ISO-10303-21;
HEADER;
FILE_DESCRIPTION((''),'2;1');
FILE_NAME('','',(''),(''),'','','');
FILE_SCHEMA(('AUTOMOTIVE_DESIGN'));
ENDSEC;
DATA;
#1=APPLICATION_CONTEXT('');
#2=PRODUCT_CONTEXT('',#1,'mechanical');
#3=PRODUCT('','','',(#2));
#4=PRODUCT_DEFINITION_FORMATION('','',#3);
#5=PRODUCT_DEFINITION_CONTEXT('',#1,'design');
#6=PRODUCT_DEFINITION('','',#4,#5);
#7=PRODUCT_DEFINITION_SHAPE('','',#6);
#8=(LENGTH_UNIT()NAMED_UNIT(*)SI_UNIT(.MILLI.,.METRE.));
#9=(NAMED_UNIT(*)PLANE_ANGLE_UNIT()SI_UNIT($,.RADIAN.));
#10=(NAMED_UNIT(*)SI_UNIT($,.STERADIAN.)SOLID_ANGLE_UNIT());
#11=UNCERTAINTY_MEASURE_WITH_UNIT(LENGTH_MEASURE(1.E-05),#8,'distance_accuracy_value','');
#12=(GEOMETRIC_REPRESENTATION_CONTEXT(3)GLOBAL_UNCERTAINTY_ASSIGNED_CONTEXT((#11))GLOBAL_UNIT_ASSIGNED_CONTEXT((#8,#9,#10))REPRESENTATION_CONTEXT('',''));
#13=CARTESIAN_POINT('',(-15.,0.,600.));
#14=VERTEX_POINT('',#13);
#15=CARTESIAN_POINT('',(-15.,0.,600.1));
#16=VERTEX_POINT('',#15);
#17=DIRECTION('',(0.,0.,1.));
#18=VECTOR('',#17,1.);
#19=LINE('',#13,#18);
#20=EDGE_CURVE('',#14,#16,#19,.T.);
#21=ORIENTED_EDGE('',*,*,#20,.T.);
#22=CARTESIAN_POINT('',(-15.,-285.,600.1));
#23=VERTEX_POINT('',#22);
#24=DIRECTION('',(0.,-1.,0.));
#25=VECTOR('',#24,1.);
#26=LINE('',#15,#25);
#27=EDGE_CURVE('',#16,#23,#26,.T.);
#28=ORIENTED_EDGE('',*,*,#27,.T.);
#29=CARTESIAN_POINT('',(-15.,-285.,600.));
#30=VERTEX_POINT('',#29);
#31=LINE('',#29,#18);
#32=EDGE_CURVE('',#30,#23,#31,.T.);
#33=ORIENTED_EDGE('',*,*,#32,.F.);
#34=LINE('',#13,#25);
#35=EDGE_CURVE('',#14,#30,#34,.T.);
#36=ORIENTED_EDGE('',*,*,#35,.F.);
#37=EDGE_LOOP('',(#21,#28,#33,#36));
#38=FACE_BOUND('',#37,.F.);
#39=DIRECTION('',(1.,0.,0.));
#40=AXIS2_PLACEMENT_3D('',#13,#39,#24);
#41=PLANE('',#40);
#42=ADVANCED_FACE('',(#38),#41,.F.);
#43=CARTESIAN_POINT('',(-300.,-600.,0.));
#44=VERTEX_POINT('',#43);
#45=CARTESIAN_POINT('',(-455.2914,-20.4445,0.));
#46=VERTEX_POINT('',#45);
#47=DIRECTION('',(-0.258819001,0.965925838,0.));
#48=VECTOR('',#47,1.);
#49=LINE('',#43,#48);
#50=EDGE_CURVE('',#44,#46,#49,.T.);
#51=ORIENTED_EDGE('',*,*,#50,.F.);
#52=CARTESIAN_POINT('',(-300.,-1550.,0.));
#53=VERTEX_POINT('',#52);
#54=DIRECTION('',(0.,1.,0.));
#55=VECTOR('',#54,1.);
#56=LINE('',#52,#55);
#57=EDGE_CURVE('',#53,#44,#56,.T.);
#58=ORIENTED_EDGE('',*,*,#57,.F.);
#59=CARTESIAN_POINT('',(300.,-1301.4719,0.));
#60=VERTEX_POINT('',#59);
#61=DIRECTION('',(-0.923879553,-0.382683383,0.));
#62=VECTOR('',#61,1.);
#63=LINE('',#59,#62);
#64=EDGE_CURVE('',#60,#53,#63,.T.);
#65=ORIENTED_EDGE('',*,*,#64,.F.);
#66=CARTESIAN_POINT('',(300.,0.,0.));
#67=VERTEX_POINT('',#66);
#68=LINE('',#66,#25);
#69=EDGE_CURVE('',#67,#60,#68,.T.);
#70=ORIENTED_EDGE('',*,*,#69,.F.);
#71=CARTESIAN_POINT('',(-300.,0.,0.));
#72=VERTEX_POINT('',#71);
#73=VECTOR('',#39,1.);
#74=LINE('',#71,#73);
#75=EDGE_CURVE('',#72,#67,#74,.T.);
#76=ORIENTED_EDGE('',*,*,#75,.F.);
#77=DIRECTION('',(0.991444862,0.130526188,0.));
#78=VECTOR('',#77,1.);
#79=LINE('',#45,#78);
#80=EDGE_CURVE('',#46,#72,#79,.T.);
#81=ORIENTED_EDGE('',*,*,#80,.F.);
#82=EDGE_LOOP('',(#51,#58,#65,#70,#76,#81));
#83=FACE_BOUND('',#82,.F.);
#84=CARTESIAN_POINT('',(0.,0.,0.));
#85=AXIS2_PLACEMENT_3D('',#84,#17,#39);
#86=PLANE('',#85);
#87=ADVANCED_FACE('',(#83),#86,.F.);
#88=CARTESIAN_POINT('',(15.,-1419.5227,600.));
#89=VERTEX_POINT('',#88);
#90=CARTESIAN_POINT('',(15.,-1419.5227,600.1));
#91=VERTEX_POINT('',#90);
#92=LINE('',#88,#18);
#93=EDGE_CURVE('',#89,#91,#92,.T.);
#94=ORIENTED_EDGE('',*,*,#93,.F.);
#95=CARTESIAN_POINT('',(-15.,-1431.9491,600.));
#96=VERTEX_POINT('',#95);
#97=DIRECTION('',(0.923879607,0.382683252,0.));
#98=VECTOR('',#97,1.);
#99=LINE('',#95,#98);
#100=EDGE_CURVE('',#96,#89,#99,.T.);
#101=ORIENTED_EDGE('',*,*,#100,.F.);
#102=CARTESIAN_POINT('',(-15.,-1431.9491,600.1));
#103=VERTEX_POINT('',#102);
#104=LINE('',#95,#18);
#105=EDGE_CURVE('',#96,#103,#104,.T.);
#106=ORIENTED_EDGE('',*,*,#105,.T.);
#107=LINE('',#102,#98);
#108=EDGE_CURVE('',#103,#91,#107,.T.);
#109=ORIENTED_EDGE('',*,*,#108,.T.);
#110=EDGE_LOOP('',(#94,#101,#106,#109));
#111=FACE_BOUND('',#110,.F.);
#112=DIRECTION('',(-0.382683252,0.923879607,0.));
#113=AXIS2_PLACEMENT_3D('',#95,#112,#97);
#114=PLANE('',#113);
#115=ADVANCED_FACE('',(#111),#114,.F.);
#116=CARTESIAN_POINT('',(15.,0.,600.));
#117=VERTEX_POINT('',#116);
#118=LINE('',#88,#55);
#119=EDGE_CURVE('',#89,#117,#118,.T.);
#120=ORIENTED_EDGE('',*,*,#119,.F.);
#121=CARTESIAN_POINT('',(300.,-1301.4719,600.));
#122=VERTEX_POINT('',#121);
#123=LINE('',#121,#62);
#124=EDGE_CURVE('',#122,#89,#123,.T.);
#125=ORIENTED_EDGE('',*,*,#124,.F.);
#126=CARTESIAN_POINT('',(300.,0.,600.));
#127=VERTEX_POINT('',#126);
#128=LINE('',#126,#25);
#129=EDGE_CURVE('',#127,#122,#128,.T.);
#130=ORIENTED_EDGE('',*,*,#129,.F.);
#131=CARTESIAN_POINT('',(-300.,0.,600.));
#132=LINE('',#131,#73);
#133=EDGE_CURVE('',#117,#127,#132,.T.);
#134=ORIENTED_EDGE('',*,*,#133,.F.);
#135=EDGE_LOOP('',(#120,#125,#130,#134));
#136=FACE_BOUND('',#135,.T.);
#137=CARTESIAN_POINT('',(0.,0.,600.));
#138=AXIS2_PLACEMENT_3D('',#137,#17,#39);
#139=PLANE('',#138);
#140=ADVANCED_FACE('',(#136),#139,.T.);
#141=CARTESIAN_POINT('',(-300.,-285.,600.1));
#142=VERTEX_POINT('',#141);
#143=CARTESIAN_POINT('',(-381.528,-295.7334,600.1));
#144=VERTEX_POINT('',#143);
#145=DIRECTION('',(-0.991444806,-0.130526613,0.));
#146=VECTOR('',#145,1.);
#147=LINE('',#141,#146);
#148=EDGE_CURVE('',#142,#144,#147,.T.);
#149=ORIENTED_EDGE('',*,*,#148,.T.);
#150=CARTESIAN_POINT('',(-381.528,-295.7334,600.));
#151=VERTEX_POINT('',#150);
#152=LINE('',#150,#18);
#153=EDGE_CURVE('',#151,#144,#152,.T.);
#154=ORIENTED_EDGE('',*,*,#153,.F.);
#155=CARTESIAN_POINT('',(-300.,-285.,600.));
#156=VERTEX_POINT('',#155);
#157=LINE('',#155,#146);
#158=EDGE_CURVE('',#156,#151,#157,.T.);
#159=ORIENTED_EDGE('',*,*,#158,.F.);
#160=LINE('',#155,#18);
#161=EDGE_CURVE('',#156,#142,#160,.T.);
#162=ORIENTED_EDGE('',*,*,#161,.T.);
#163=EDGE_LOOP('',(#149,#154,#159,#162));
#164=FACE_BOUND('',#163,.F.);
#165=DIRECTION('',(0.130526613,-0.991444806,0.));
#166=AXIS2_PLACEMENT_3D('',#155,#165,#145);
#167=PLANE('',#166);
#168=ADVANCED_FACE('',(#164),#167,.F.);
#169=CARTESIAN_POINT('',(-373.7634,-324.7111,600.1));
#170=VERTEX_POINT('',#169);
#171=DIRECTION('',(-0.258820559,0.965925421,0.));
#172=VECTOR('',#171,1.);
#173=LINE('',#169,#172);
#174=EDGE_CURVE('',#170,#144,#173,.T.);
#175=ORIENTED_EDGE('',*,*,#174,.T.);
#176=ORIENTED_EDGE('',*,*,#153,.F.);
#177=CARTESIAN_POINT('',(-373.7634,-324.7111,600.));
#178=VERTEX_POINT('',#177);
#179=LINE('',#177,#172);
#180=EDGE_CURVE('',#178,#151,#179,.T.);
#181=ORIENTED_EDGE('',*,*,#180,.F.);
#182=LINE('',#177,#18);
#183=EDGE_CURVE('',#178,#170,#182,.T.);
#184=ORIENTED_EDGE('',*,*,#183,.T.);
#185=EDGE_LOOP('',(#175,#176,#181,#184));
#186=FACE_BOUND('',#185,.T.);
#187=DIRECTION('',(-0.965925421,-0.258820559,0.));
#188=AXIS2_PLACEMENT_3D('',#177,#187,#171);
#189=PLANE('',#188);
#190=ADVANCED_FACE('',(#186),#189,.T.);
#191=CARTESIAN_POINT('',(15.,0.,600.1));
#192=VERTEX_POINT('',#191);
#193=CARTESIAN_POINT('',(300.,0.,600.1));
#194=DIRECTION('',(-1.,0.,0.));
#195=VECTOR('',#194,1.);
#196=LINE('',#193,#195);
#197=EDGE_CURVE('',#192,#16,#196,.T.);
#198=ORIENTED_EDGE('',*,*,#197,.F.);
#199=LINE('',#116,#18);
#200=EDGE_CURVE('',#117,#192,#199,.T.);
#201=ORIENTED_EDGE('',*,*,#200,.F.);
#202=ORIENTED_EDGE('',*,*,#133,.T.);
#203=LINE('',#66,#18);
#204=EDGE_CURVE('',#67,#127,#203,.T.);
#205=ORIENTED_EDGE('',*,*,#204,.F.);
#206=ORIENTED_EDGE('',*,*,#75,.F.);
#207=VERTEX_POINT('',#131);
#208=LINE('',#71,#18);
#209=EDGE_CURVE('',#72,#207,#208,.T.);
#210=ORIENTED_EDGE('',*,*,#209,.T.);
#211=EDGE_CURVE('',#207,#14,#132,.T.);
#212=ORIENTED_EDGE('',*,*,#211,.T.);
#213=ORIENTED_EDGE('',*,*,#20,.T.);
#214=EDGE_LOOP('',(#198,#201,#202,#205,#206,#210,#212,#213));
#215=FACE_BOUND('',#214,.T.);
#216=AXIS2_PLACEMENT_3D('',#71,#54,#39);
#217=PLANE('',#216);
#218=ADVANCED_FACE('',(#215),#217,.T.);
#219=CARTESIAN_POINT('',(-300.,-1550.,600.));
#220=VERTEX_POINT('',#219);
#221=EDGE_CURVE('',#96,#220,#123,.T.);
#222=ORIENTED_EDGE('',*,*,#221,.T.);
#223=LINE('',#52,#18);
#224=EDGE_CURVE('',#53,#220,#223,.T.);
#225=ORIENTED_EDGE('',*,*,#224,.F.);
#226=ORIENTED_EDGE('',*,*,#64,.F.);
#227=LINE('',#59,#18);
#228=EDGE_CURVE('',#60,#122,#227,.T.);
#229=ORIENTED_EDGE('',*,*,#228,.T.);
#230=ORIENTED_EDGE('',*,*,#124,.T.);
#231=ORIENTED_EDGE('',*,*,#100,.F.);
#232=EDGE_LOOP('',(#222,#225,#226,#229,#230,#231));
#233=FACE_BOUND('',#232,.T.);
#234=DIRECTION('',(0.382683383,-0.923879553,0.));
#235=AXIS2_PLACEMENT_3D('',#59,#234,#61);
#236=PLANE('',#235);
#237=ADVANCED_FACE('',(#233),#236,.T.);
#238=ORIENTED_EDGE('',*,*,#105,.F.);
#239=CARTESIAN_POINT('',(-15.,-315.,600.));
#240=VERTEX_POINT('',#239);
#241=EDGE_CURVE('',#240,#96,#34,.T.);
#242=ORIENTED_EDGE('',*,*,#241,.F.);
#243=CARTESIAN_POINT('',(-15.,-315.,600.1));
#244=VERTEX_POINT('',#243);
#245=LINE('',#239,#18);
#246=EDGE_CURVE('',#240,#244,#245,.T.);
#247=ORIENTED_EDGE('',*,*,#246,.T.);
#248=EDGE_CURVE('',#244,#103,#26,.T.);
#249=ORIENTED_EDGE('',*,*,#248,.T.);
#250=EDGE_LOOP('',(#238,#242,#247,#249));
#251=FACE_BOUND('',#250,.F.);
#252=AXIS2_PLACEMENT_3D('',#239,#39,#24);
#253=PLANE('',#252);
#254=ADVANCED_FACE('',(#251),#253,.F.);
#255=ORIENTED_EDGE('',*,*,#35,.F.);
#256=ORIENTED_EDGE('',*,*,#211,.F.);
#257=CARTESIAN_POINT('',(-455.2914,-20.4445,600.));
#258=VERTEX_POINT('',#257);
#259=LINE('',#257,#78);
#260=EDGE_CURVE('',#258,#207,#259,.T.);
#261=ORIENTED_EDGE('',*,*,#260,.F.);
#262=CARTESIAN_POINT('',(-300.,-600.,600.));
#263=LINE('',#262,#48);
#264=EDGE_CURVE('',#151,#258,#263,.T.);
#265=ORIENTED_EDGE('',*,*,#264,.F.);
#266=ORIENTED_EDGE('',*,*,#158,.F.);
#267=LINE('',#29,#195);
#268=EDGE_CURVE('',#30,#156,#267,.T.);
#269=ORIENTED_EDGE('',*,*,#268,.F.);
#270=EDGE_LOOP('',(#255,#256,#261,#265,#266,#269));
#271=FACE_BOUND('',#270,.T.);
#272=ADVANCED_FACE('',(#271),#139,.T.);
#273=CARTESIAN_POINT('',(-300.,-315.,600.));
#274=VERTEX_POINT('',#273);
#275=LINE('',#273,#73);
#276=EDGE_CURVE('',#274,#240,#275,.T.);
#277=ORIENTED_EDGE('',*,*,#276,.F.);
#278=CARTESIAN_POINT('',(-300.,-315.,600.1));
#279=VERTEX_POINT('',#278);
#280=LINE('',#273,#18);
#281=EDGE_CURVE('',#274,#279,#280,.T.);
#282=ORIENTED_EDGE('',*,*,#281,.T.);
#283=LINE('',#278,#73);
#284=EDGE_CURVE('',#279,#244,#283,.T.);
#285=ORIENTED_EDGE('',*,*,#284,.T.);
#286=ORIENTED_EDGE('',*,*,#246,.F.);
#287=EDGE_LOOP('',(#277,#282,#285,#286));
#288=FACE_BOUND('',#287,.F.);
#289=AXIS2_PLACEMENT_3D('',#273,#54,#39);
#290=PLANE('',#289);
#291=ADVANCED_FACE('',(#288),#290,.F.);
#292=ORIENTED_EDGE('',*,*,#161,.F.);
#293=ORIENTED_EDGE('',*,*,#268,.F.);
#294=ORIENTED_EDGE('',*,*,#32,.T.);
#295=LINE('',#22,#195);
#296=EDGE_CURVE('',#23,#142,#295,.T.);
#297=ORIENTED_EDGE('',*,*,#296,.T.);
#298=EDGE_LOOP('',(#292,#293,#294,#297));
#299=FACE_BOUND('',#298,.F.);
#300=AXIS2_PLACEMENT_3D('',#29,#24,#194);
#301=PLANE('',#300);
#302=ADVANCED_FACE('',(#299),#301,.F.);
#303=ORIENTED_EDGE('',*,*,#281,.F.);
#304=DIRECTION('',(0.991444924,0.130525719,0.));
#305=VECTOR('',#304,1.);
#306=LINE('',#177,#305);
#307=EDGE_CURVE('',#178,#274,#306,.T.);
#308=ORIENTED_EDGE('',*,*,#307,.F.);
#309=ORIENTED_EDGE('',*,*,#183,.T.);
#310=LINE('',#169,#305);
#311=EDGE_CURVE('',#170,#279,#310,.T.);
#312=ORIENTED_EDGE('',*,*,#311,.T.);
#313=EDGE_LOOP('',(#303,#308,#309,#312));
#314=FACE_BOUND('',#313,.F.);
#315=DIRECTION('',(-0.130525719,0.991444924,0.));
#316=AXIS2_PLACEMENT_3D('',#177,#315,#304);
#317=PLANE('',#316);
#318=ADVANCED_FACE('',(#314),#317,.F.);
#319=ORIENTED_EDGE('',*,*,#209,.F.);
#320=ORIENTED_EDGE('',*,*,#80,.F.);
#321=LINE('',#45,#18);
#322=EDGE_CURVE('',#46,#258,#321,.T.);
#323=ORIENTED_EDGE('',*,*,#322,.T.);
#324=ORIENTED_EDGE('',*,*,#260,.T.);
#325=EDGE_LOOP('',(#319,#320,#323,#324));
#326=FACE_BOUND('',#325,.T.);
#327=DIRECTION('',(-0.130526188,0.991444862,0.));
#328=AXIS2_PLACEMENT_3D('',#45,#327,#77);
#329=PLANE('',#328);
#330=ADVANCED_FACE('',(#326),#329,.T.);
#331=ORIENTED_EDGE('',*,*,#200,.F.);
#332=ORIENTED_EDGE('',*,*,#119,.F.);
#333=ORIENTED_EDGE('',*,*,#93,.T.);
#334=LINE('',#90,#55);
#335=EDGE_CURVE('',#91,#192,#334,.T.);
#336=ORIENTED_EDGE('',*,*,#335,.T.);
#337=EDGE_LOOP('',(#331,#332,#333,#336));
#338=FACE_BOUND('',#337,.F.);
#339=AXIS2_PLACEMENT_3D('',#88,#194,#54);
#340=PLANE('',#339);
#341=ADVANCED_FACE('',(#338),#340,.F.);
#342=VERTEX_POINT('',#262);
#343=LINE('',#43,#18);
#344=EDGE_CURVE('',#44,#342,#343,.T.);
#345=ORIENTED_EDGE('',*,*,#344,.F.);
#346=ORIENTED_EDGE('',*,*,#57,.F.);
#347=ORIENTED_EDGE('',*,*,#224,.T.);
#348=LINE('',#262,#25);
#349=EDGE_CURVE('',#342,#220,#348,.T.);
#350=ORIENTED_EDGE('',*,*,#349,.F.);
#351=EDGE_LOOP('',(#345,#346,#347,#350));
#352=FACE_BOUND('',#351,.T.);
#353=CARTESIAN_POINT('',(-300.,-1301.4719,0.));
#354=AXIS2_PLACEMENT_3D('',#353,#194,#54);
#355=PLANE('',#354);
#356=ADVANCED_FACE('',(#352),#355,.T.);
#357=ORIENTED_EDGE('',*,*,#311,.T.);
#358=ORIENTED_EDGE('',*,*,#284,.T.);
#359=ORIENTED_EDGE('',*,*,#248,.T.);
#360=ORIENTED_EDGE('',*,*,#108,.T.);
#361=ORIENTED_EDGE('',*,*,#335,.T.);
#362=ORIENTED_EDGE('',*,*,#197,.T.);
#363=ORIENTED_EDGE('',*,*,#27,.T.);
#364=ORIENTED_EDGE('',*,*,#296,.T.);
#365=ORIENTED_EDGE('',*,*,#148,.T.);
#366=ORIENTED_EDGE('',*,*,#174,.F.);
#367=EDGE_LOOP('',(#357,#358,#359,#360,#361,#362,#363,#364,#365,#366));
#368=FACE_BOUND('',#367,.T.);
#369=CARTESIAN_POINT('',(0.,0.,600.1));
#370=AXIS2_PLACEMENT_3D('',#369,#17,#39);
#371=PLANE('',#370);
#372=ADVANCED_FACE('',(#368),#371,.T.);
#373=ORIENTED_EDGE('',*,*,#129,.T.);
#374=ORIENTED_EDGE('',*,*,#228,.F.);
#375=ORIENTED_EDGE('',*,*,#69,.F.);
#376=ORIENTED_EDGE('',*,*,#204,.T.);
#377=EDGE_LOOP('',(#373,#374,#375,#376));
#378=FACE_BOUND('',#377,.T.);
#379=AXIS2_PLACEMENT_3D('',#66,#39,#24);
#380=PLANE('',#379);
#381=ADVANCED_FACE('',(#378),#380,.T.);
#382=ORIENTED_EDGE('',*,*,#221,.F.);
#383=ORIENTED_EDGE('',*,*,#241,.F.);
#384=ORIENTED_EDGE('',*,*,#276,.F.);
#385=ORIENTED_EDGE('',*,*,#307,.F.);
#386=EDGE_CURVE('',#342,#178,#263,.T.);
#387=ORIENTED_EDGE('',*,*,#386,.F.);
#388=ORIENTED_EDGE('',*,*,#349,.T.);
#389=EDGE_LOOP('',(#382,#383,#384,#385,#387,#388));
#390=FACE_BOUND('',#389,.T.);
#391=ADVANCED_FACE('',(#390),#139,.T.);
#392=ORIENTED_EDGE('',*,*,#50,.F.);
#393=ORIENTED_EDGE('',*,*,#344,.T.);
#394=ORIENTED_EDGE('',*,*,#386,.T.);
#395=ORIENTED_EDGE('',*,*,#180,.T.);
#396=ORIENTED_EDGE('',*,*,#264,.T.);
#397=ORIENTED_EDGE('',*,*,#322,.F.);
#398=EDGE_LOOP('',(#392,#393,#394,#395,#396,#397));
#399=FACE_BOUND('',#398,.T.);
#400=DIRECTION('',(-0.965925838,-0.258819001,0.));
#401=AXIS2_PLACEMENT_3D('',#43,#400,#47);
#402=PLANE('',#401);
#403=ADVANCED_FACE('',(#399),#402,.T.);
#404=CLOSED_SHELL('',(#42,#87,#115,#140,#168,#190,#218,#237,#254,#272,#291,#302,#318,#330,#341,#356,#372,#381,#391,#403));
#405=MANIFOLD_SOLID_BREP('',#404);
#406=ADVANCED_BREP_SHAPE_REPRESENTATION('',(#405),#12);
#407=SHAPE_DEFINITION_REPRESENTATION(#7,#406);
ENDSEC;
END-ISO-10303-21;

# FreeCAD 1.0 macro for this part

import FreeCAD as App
import Part
import Sketcher
Q = App.Units.Quantity

doc = App.newDocument("Part")
body = doc.addObject("PartDesign::Body", "Body")

# Sketch on XY plane
sketch1 = body.newObject("Sketcher::SketchObject", "Sketch")
sketch1.AttachmentSupport = (doc.getObject("XY_Plane"), [""])
sketch1.MapMode = "FlatFace"
sketch1.addGeometry([
    Part.LineSegment(App.Vector(300, 0, 0), App.Vector(-300, 0, 0)),  # 0
    Part.LineSegment(App.Vector(-300, 0, 0), App.Vector(-455, -20, 0)),  # 1
    Part.LineSegment(App.Vector(-455, -20, 0), App.Vector(-300, -600, 0)),  # 2
    Part.LineSegment(App.Vector(-300, -600, 0), App.Vector(-300, -1550, 0)),  # 3
    Part.LineSegment(App.Vector(-300, -1550, 0), App.Vector(300, -1301, 0)),  # 4
    Part.LineSegment(App.Vector(300, -1301, 0), App.Vector(300, 0, 0)),  # 5
], False)
sketch1.addConstraint([
    Sketcher.Constraint("Coincident", 0, 2, 1, 1),
    Sketcher.Constraint("Coincident", 1, 2, 2, 1),
    Sketcher.Constraint("Coincident", 2, 2, 3, 1),
    Sketcher.Constraint("Coincident", 3, 2, 4, 1),
    Sketcher.Constraint("Coincident", 4, 2, 5, 1),
    Sketcher.Constraint("Coincident", 5, 2, 0, 1),
    Sketcher.Constraint("Horizontal", 0),
    Sketcher.Constraint("Vertical", 3),
    Sketcher.Constraint("Vertical", 5),
    Sketcher.Constraint("Symmetric", 0, 2, 5, 2, -1, 1),
    Sketcher.Constraint("Vertical", 0, 2, 2, 2),
    Sketcher.Constraint("DistanceX", 0, 2, 0, 1, 600.0),
    Sketcher.Constraint("Distance", 2, 600.0),
    Sketcher.Constraint("DistanceY", 2, 2, -1, 1, 600.0),
    Sketcher.Constraint("DistanceY", 3, 2, -1, 1, 1550.0),
    Sketcher.Constraint("Angle", 2, Q("-75 deg")),
    Sketcher.Constraint("Angle", 4, Q("22.5 deg")),
])
pad1 = body.newObject("PartDesign::Pad", "Pad")
pad1.Profile = sketch1
pad1.Length = 600

# Sketch on XY plane
sketch2 = body.newObject("Sketcher::SketchObject", "Sketch001")
sketch2.AttachmentSupport = (doc.getObject("XY_Plane"), [""])
sketch2.MapMode = "FlatFace"
sketch2.AttachmentOffset = App.Placement(App.Vector(0, 0, 600), App.Rotation())
sketch2.addGeometry([
    Part.LineSegment(App.Vector(15, -1420, 0), App.Vector(15, 0, 0)),  # 0
    Part.LineSegment(App.Vector(15, 0, 0), App.Vector(-15, 0, 0)),  # 1
    Part.LineSegment(App.Vector(-15, 0, 0), App.Vector(-15, -285, 0)),  # 2
    Part.LineSegment(App.Vector(-15, -285, 0), App.Vector(-300, -285, 0)),  # 3
    Part.LineSegment(App.Vector(-300, -285, 0), App.Vector(-382, -296, 0)),  # 4
    Part.LineSegment(App.Vector(-382, -296, 0), App.Vector(-374, -325, 0)),  # 5
    Part.LineSegment(App.Vector(-374, -325, 0), App.Vector(-300, -315, 0)),  # 6
    Part.LineSegment(App.Vector(-300, -315, 0), App.Vector(-15, -315, 0)),  # 7
    Part.LineSegment(App.Vector(-15, -315, 0), App.Vector(-15, -1432, 0)),  # 8
    Part.LineSegment(App.Vector(-15, -1432, 0), App.Vector(15, -1420, 0)),  # 9
], False)
sketch2.addConstraint([
    Sketcher.Constraint("Coincident", 0, 2, 1, 1),
    Sketcher.Constraint("Coincident", 1, 2, 2, 1),
    Sketcher.Constraint("Coincident", 2, 2, 3, 1),
    Sketcher.Constraint("Coincident", 3, 2, 4, 1),
    Sketcher.Constraint("Coincident", 4, 2, 5, 1),
    Sketcher.Constraint("Coincident", 5, 2, 6, 1),
    Sketcher.Constraint("Coincident", 6, 2, 7, 1),
    Sketcher.Constraint("Coincident", 7, 2, 8, 1),
    Sketcher.Constraint("Coincident", 8, 2, 9, 1),
    Sketcher.Constraint("Coincident", 9, 2, 0, 1),
    Sketcher.Constraint("Vertical", 0),
    Sketcher.Constraint("Horizontal", 1),
    Sketcher.Constraint("Vertical", 2),
    Sketcher.Constraint("Horizontal", 3),
    Sketcher.Constraint("Horizontal", 7),
    Sketcher.Constraint("Vertical", 8),
    Sketcher.Constraint("Symmetric", 0, 2, 1, 2, -1, 1),
    Sketcher.Constraint("Parallel", 4, 6),
    Sketcher.Constraint("Vertical", 3, 2, 6, 2),
    Sketcher.Constraint("Vertical", 2, 2, 7, 2),
    Sketcher.Constraint("Equal", 7, 2),
    Sketcher.Constraint("DistanceX", 1, 2, 1, 1, 30.0),
    Sketcher.Constraint("DistanceX", 3, 2, 3, 1, 285.0),
    Sketcher.Constraint("Distance", 5, 30.0),
    Sketcher.Constraint("DistanceY", 6, 2, 3, 2, 30.0),
    Sketcher.Constraint("Angle", 5, Q("-75 deg")),
    Sketcher.Constraint("Angle", 9, Q("22.5 deg")),
    Sketcher.Constraint("Distance", 6, 74.4),
    Sketcher.Constraint("DistanceY", 8, 2, 8, 1, 1116.949),
])
pad2 = body.newObject("PartDesign::Pad", "Pad001")
pad2.Profile = sketch2
pad2.Length = 0.1

doc.recompute()
